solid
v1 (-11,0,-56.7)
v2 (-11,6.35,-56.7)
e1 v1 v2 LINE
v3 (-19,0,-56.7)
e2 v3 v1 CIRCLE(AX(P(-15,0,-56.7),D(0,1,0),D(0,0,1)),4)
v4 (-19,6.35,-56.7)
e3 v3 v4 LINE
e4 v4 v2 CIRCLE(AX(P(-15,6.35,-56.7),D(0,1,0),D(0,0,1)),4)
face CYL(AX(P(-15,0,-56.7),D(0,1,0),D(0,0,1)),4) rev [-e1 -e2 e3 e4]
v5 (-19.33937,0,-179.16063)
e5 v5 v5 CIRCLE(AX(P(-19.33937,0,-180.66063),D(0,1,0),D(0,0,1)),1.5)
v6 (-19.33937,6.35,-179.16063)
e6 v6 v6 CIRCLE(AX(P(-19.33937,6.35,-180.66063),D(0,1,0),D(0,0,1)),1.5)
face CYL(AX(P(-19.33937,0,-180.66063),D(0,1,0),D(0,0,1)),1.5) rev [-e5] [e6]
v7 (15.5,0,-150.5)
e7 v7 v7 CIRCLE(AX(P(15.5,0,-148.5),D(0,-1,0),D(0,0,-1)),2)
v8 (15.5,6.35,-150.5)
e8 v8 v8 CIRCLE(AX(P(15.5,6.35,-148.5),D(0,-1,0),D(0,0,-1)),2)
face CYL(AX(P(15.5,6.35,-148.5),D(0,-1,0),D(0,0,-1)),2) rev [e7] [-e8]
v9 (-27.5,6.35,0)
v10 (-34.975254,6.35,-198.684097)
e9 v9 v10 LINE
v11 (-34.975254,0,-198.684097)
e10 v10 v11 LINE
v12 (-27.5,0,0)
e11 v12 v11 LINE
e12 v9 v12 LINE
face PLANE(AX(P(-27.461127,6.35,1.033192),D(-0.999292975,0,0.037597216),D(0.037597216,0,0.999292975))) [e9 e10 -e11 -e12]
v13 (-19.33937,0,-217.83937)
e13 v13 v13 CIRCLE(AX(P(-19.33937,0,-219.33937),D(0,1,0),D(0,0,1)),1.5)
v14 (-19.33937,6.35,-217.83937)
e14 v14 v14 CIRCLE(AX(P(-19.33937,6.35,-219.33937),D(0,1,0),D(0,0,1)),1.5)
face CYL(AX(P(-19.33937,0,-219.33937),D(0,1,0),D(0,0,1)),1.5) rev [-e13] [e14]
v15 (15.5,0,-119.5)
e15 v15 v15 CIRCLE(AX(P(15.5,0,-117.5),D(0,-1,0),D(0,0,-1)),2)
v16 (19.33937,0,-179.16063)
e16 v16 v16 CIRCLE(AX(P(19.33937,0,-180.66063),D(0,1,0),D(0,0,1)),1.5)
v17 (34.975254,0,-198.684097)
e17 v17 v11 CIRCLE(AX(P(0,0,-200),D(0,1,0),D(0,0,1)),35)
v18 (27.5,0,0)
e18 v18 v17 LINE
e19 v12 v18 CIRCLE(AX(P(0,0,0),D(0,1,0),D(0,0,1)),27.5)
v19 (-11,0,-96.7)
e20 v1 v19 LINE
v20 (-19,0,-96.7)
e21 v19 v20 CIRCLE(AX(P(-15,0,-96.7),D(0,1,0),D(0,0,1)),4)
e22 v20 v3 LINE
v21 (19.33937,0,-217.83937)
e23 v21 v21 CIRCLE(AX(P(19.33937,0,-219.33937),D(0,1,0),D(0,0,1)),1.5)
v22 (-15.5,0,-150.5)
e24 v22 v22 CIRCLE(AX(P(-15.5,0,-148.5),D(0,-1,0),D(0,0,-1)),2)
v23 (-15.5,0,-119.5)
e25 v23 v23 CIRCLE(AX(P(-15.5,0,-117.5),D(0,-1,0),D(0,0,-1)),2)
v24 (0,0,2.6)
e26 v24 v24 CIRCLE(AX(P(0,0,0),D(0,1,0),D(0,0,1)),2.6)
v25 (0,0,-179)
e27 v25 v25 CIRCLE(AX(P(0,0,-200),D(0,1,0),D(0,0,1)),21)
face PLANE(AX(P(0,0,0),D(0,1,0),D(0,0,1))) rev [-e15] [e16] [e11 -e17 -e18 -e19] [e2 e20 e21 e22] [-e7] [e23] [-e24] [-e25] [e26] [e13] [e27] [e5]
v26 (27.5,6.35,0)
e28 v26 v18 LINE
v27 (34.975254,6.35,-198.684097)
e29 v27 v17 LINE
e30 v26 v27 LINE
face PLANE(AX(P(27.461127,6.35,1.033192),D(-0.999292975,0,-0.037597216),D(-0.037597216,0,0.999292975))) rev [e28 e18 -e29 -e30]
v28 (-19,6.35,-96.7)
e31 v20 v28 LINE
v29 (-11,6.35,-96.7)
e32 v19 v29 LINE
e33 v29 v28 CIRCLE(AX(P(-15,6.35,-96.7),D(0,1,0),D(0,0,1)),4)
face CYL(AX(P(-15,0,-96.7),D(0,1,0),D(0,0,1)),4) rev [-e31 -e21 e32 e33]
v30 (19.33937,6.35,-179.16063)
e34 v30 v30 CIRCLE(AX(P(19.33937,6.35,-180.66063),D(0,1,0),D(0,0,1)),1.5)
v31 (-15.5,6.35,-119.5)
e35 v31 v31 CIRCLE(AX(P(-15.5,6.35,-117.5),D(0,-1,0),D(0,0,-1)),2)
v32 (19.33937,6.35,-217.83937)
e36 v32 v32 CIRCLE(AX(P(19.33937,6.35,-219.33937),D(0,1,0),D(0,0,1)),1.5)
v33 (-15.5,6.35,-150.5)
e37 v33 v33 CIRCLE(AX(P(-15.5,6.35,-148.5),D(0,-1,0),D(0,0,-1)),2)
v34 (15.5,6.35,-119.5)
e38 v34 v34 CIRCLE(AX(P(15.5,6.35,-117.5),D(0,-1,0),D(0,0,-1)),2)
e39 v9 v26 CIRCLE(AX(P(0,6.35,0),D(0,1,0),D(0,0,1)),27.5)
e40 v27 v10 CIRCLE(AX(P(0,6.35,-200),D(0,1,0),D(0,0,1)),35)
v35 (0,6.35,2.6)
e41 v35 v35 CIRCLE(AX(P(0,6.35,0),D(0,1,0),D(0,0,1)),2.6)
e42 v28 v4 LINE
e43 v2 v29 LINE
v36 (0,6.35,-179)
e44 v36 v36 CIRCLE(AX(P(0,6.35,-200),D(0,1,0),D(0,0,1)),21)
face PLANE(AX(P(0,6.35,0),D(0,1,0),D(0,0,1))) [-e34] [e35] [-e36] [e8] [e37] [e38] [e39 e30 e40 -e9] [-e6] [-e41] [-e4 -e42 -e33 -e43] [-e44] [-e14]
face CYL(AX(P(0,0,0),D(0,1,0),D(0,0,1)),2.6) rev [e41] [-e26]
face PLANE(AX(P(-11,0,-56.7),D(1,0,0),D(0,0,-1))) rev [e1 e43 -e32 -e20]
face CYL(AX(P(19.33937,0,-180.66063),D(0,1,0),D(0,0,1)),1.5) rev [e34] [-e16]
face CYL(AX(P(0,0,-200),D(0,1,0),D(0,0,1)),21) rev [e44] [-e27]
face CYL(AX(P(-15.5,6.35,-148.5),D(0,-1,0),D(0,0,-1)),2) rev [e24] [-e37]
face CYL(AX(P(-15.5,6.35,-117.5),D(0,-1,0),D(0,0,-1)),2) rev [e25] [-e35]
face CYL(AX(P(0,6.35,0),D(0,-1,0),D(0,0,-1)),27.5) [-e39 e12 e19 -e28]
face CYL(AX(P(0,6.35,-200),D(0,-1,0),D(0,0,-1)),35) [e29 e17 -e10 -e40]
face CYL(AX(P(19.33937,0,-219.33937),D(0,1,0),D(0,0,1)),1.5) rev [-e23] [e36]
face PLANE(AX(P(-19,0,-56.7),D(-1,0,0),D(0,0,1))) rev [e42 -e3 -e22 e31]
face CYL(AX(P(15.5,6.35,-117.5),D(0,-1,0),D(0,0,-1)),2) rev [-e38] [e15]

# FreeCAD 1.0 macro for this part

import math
import FreeCAD as App
import Part
import Sketcher
Q = App.Units.Quantity

doc = App.newDocument("Part")
params = doc.addObject("Spreadsheet::Sheet", "Params")
for row, (alias, value) in enumerate([
    ("sketch1_radius", "35 mm"),
    ("sketch1_radius2", "27.5 mm"),
    ("pad1_length", "6.35 mm"),
    ("sketch2_diameter", "5.2 mm"),
    ("sketch3_diameter", "42 mm"),
    ("sketch4_diameter", "3 mm"),
    ("sketch5_radius", "4 mm"),
    ("sketch5_height", "40 mm"),
    ("sketch6_diameter", "4 mm"),
], start=1):
    params.set(f"A{row}", alias)
    params.set(f"B{row}", "=" + value)
    params.setAlias(f"B{row}", alias)

body = doc.addObject("PartDesign::Body", "Body")

# Sketch on XZ plane
sketch1 = doc.addObject("Sketcher::SketchObject", "Sketch")
body.addObject(sketch1)
sketch1.AttachmentSupport = (doc.XZ_Plane, [""])
sketch1.MapMode = "FlatFace"
sketch1.addGeometry([
    Part.LineSegment(App.Vector(27.5, 0, 0), App.Vector(34.975254, -198.684097, 0)),
    Part.ArcOfCircle(Part.Circle(App.Vector(0, -200, 0), App.Vector(0, 0, 1), 35), math.radians(177.84533), math.radians(362.15467)),
    Part.LineSegment(App.Vector(-34.975254, -198.684097, 0), App.Vector(-27.5, 0, 0)),
    Part.ArcOfCircle(Part.Circle(App.Vector(0, 0, 0), App.Vector(0, 0, 1), 27.5), math.radians(0), math.radians(180)),
], False)
sketch1.addConstraint([
    Sketcher.Constraint("Tangent", 0, 2, 1, 2),
    Sketcher.Constraint("Tangent", 1, 1, 2, 1),
    Sketcher.Constraint("Coincident", 2, 2, 3, 2),
    Sketcher.Constraint("Coincident", 3, 1, 0, 1),
    Sketcher.Constraint("Coincident", 3, 3, -1, 1),
    Sketcher.Constraint("PointOnObject", 1, 3, -2),
    Sketcher.Constraint("PointOnObject", 2, 2, -1),
    Sketcher.Constraint("PointOnObject", 3, 1, -1),
    Sketcher.Constraint("Radius", 1, Q("35 mm")),
    Sketcher.Constraint("Radius", 3, Q("27.5 mm")),
    Sketcher.Constraint("DistanceY", 1, 3, -1, 1, Q("200 mm")),
])
sketch1.setExpression("Constraints[8]", "Params.sketch1_radius")
sketch1.setExpression("Constraints[9]", "Params.sketch1_radius2")
pad1 = doc.addObject("PartDesign::Pad", "Pad")
body.addObject(pad1)
pad1.Profile = sketch1
pad1.setExpression("Length", "Params.pad1_length")
pad1.Reversed = True

# Sketch on XZ plane
sketch2 = doc.addObject("Sketcher::SketchObject", "Sketch001")
body.addObject(sketch2)
sketch2.AttachmentSupport = (doc.XZ_Plane, [""])
sketch2.MapMode = "FlatFace"
sketch2.AttachmentOffset = App.Placement(App.Vector(0, 0, -6.35), App.Rotation())
sketch2.addGeometry(Part.Circle(App.Vector(0, 0, 0), App.Vector(0, 0, 1), 2.6), False)
sketch2.addConstraint([
    Sketcher.Constraint("Coincident", 0, 3, -1, 1),
    Sketcher.Constraint("Diameter", 0, Q("5.2 mm")),
])
sketch2.setExpression("Constraints[1]", "Params.sketch2_diameter")
pocket1 = doc.addObject("PartDesign::Pocket", "Pocket")
body.addObject(pocket1)
pocket1.Profile = sketch2
pocket1.Type = "ThroughAll"
pocket1.Reversed = True

# Sketch on XZ plane
sketch3 = doc.addObject("Sketcher::SketchObject", "Sketch002")
body.addObject(sketch3)
sketch3.AttachmentSupport = (doc.XZ_Plane, [""])
sketch3.MapMode = "FlatFace"
sketch3.AttachmentOffset = App.Placement(App.Vector(0, 0, -6.35), App.Rotation())
sketch3.addGeometry(Part.Circle(App.Vector(0, -200, 0), App.Vector(0, 0, 1), 21), False)
sketch3.addConstraint([
    Sketcher.Constraint("PointOnObject", 0, 3, -2),
    Sketcher.Constraint("Diameter", 0, Q("42 mm")),
    Sketcher.Constraint("DistanceY", 0, 3, -1, 1, Q("200 mm")),
])
sketch3.setExpression("Constraints[1]", "Params.sketch3_diameter")
pocket2 = doc.addObject("PartDesign::Pocket", "Pocket001")
body.addObject(pocket2)
pocket2.Profile = sketch3
pocket2.Type = "ThroughAll"
pocket2.Reversed = True

# Sketch on XZ plane
sketch4 = doc.addObject("Sketcher::SketchObject", "Sketch003")
body.addObject(sketch4)
sketch4.AttachmentSupport = (doc.XZ_Plane, [""])
sketch4.MapMode = "FlatFace"
sketch4.AttachmentOffset = App.Placement(App.Vector(0, 0, -6.35), App.Rotation())
sketch4.addGeometry([
    Part.Circle(App.Vector(-19.33937, -219.33937, 0), App.Vector(0, 0, 1), 1.5),
    Part.Circle(App.Vector(19.33937, -219.33937, 0), App.Vector(0, 0, 1), 1.5),
    Part.Circle(App.Vector(19.33937, -180.66063, 0), App.Vector(0, 0, 1), 1.5),
    Part.Circle(App.Vector(-19.33937, -180.66063, 0), App.Vector(0, 0, 1), 1.5),
], False)
sketch4.addConstraint([
    Sketcher.Constraint("Equal", 0, 1),
    Sketcher.Constraint("Equal", 1, 2),
    Sketcher.Constraint("Equal", 2, 3),
    Sketcher.Constraint("Symmetric", 0, 3, 1, 3, -2),
    Sketcher.Constraint("Symmetric", 2, 3, 3, 3, -2),
    Sketcher.Constraint("Vertical", 1, 3, 2, 3),
    Sketcher.Constraint("Diameter", 0, Q("3 mm")),
    Sketcher.Constraint("DistanceX", 0, 3, -1, 1, Q("19.33937 mm")),
    Sketcher.Constraint("DistanceY", 0, 3, -1, 1, Q("219.33937 mm")),
    Sketcher.Constraint("DistanceY", 2, 3, -1, 1, Q("180.66063 mm")),
])
sketch4.setExpression("Constraints[6]", "Params.sketch4_diameter")
pocket3 = doc.addObject("PartDesign::Pocket", "Pocket002")
body.addObject(pocket3)
pocket3.Profile = sketch4
pocket3.Type = "ThroughAll"
pocket3.Reversed = True

# Sketch on XZ plane
sketch5 = doc.addObject("Sketcher::SketchObject", "Sketch004")
body.addObject(sketch5)
sketch5.AttachmentSupport = (doc.XZ_Plane, [""])
sketch5.MapMode = "FlatFace"
sketch5.AttachmentOffset = App.Placement(App.Vector(0, 0, -6.35), App.Rotation())
sketch5.addGeometry([
    Part.LineSegment(App.Vector(-19, -96.7, 0), App.Vector(-19, -56.7, 0)),
    Part.ArcOfCircle(Part.Circle(App.Vector(-15, -56.7, 0), App.Vector(0, 0, 1), 4), math.radians(0), math.radians(180)),
    Part.LineSegment(App.Vector(-11, -56.7, 0), App.Vector(-11, -96.7, 0)),
    Part.ArcOfCircle(Part.Circle(App.Vector(-15, -96.7, 0), App.Vector(0, 0, 1), 4), math.radians(180), math.radians(360)),
], False)
sketch5.addConstraint([
    Sketcher.Constraint("Tangent", 0, 2, 1, 2),
    Sketcher.Constraint("Tangent", 1, 1, 2, 1),
    Sketcher.Constraint("Tangent", 2, 2, 3, 2),
    Sketcher.Constraint("Tangent", 3, 1, 0, 1),
    Sketcher.Constraint("Vertical", 0),
    Sketcher.Constraint("Vertical", 2),
    Sketcher.Constraint("Radius", 1, Q("4 mm")),
    Sketcher.Constraint("DistanceY", 0, 1, 0, 2, Q("40 mm")),
    Sketcher.Constraint("DistanceX", 1, 3, -1, 1, Q("15 mm")),
    Sketcher.Constraint("DistanceY", 1, 3, -1, 1, Q("56.7 mm")),
])
sketch5.setExpression("Constraints[6]", "Params.sketch5_radius")
sketch5.setExpression("Constraints[7]", "Params.sketch5_height")
pocket4 = doc.addObject("PartDesign::Pocket", "Pocket003")
body.addObject(pocket4)
pocket4.Profile = sketch5
pocket4.Type = "ThroughAll"
pocket4.Reversed = True

# Sketch on XZ plane
sketch6 = doc.addObject("Sketcher::SketchObject", "Sketch005")
body.addObject(sketch6)
sketch6.AttachmentSupport = (doc.XZ_Plane, [""])
sketch6.MapMode = "FlatFace"
sketch6.addGeometry([
    Part.Circle(App.Vector(15.5, -117.5, 0), App.Vector(0, 0, 1), 2),
    Part.Circle(App.Vector(15.5, -148.5, 0), App.Vector(0, 0, 1), 2),
    Part.Circle(App.Vector(-15.5, -148.5, 0), App.Vector(0, 0, 1), 2),
    Part.Circle(App.Vector(-15.5, -117.5, 0), App.Vector(0, 0, 1), 2),
], False)
sketch6.addConstraint([
    Sketcher.Constraint("Equal", 0, 1),
    Sketcher.Constraint("Equal", 1, 2),
    Sketcher.Constraint("Equal", 2, 3),
    Sketcher.Constraint("Symmetric", 1, 3, 2, 3, -2),
    Sketcher.Constraint("Symmetric", 0, 3, 3, 3, -2),
    Sketcher.Constraint("Vertical", 0, 3, 1, 3),
    Sketcher.Constraint("Diameter", 0, Q("4 mm")),
    Sketcher.Constraint("DistanceY", 1, 3, 0, 3, Q("31 mm")),
    Sketcher.Constraint("DistanceX", 2, 3, 1, 3, Q("31 mm")),
    Sketcher.Constraint("DistanceY", 0, 3, -1, 1, Q("117.5 mm")),
])
sketch6.setExpression("Constraints[6]", "Params.sketch6_diameter")
pocket5 = doc.addObject("PartDesign::Pocket", "Pocket004")
body.addObject(pocket5)
pocket5.Profile = sketch6
pocket5.Type = "ThroughAll"

doc.recompute()
